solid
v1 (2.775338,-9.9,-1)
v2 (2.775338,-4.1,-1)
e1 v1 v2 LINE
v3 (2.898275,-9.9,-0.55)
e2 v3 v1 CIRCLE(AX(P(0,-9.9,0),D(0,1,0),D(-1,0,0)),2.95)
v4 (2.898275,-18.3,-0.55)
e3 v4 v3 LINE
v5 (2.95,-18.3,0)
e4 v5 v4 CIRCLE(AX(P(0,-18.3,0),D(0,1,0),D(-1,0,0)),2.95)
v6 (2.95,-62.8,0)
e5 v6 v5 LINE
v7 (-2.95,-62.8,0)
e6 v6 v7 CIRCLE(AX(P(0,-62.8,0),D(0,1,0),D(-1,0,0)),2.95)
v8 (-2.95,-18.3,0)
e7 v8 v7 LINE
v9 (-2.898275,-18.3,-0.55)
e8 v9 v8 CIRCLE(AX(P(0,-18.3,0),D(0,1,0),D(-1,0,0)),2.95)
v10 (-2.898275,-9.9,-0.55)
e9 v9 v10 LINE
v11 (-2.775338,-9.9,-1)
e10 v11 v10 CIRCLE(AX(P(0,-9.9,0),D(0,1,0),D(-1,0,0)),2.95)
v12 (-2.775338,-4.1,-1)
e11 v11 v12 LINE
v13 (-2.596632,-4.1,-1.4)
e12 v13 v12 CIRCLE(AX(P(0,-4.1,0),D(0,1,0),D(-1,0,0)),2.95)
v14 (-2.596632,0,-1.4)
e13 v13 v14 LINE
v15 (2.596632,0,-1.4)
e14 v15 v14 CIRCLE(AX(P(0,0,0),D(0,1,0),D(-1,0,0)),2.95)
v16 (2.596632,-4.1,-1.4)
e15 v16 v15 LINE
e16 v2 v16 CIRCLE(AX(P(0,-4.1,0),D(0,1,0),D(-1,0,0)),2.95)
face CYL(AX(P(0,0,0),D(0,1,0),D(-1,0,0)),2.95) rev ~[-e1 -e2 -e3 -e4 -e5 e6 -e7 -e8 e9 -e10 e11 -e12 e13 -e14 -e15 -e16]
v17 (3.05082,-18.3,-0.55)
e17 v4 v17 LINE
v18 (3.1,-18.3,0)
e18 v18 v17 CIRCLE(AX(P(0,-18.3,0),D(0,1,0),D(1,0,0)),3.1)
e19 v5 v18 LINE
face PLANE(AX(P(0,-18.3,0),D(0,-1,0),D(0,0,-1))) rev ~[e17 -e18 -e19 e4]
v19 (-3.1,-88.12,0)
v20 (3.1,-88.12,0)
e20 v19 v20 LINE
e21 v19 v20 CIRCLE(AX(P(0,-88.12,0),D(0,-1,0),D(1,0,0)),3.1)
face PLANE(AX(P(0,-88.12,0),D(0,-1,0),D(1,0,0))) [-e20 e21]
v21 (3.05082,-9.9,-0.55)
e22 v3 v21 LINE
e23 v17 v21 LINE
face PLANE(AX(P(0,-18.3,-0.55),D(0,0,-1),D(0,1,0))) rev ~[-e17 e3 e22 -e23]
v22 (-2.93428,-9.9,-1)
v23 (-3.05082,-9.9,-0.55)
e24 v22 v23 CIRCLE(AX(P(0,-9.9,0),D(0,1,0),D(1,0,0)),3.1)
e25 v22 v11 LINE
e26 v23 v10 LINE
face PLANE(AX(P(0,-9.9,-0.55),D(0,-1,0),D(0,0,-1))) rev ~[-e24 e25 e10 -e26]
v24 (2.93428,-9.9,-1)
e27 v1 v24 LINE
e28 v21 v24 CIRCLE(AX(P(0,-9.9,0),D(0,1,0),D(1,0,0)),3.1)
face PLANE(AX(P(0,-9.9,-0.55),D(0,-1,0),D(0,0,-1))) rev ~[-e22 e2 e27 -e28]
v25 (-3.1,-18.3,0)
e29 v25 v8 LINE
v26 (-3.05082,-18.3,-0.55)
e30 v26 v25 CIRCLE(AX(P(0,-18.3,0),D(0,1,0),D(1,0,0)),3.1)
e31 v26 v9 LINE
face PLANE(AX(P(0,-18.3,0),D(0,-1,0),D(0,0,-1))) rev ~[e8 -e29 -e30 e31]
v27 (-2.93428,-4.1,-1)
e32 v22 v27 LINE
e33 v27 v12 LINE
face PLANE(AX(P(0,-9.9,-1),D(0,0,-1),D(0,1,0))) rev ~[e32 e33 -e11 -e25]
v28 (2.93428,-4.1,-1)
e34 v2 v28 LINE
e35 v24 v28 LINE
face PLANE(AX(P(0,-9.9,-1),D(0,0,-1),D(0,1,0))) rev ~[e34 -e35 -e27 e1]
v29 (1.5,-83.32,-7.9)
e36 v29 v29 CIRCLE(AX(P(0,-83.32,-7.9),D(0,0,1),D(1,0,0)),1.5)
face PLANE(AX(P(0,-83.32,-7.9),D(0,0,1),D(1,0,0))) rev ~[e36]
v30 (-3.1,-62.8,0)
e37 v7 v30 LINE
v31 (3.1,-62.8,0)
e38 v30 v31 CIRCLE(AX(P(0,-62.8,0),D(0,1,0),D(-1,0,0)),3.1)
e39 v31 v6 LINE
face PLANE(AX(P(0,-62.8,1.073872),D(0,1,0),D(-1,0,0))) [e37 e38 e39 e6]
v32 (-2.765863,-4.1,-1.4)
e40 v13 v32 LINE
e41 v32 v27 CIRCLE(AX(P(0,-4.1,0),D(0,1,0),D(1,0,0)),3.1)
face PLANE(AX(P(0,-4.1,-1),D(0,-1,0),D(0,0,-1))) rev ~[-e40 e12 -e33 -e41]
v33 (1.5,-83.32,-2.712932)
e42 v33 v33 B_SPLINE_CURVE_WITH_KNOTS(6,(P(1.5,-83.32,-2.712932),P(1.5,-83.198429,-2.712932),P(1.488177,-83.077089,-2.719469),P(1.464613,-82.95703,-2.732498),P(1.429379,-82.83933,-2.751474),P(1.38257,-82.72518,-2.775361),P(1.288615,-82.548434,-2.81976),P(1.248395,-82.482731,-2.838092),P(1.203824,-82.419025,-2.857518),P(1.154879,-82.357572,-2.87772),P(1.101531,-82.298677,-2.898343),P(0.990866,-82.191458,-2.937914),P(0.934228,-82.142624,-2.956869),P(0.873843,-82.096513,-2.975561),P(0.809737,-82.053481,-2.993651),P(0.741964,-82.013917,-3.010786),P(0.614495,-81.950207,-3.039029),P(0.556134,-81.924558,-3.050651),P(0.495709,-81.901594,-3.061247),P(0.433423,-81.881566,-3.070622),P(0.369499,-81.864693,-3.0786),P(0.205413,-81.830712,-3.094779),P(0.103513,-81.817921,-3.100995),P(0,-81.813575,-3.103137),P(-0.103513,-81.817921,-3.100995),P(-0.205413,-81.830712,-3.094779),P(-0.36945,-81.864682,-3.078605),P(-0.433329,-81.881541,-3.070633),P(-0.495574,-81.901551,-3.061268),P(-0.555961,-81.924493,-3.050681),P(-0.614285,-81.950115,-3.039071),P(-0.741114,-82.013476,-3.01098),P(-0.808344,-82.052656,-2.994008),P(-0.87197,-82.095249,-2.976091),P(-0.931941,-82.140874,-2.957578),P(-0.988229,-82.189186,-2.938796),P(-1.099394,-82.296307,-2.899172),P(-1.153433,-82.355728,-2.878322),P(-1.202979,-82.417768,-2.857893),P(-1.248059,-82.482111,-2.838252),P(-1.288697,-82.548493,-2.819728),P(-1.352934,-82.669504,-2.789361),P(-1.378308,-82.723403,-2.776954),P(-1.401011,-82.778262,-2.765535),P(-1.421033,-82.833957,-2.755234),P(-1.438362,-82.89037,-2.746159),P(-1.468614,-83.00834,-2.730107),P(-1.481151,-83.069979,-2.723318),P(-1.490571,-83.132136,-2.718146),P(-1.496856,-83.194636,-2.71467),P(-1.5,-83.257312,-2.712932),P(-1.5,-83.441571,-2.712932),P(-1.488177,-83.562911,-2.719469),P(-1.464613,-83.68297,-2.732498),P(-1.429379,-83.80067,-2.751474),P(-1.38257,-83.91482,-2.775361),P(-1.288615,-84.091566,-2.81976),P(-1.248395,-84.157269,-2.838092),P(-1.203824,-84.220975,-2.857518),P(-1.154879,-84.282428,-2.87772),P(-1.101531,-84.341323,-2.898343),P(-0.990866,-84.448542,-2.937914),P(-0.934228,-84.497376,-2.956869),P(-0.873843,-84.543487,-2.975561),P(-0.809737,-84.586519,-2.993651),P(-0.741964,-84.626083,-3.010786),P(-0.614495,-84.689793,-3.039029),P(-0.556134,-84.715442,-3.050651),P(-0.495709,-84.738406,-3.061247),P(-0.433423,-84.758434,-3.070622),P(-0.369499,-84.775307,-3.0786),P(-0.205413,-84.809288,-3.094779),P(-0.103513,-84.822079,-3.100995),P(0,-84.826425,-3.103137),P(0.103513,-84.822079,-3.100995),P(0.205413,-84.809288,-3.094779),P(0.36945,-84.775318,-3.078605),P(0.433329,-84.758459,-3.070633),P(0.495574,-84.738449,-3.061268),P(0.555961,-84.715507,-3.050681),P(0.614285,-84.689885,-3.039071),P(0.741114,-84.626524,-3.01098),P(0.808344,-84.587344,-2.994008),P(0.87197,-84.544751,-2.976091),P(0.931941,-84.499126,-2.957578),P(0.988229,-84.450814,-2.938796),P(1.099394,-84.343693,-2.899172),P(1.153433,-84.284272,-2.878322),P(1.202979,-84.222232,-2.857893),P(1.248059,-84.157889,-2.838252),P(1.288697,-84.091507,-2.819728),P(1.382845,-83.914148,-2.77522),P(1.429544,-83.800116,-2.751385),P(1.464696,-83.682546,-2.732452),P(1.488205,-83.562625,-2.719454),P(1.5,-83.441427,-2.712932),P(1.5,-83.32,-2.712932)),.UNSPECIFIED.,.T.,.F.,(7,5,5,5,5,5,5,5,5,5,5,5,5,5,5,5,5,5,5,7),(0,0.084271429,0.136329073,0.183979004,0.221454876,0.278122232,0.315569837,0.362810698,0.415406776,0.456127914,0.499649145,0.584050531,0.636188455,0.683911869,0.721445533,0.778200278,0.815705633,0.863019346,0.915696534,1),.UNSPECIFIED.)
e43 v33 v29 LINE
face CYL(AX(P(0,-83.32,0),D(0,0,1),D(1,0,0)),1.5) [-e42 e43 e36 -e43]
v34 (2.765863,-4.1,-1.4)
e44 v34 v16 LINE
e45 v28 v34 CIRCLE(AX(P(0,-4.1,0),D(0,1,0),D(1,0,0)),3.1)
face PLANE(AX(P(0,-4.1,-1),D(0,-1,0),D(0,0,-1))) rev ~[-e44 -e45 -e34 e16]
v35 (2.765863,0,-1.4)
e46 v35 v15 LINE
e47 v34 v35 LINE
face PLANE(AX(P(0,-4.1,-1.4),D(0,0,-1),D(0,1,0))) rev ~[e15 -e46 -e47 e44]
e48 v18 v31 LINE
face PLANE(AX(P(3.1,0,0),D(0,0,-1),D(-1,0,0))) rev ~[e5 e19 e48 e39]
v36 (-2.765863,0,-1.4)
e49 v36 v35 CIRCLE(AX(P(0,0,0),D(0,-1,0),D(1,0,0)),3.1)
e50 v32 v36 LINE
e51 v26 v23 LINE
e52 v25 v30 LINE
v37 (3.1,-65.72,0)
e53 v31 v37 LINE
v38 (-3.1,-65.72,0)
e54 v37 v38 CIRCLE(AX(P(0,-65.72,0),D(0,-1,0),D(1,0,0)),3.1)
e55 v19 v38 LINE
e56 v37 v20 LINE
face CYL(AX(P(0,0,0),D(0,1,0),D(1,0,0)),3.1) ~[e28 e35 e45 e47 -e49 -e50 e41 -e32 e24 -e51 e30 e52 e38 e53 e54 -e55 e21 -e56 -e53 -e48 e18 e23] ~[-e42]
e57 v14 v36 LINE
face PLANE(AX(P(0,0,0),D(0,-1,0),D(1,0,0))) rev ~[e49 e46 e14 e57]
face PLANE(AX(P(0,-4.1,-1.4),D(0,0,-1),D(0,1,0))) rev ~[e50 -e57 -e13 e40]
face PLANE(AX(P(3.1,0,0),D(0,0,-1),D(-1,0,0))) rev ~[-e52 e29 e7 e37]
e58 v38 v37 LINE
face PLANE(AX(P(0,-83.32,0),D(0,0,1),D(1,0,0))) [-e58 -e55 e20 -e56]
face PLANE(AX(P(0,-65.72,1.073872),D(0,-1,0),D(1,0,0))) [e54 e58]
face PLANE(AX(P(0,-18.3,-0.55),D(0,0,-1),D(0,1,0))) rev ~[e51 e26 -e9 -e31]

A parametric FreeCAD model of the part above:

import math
import FreeCAD as App
import Part
import Sketcher
from FreeCAD import Vector
Q = App.Units.Quantity

doc = App.newDocument("Part")
body = doc.addObject("PartDesign::Body", "Body")

sketch1 = body.newObject("Sketcher::SketchObject", "Sketch")
sketch1.AttachmentSupport = (doc.getObject("XZ_Plane"), [""])
sketch1.MapMode = "FlatFace"
sketch1.addGeometry(Part.Circle(Vector(0, 0, 0), Vector(0, 0, 1), 3.1), False)
sketch1.addConstraint([
    Sketcher.Constraint("Coincident", 0, 3, -1, 1),
    Sketcher.Constraint("Diameter", 0, Q("6.2 mm")),
])
pad1 = body.newObject("PartDesign::Pad", "Pad")
pad1.Profile = sketch1
pad1.Length = 88.12

sketch2 = body.newObject("Sketcher::SketchObject", "Sketch001")
sketch2.AttachmentSupport = (doc.getObject("XZ_Plane"), [""])
sketch2.MapMode = "FlatFace"
sketch2.AttachmentOffset = App.Placement(Vector(0, 0, 88.12), App.Rotation())
sketch2.addGeometry([
    Part.ArcOfCircle(Part.Circle(Vector(0, 0, 0), Vector(0, 0, 1), 3.1), math.radians(0), math.radians(180)),
    Part.LineSegment(Vector(-3.1, 0, 0), Vector(3.1, 0, 0)),
], False)
sketch2.addConstraint([
    Sketcher.Constraint("Coincident", 0, 1, 1, 2),
    Sketcher.Constraint("Coincident", 1, 1, 0, 2),
    Sketcher.Constraint("Horizontal", 1),
    Sketcher.Constraint("Coincident", 0, 3, -1, 1),
    Sketcher.Constraint("PointOnObject", 0, 1, -1),
    Sketcher.Constraint("Radius", 0, Q("3.1 mm")),
])
pocket1 = body.newObject("PartDesign::Pocket", "Pocket")
pocket1.Profile = sketch2
pocket1.Length = 22.4

sketch3 = body.newObject("Sketcher::SketchObject", "Sketch002")
sketch3.AttachmentSupport = (doc.getObject("XZ_Plane"), [""])
sketch3.MapMode = "FlatFace"
sketch3.addGeometry([
    Part.ArcOfCircle(Part.Circle(Vector(0, 0, 0), Vector(0, 0, 1), 3.1), math.radians(0), math.radians(180)),
    Part.LineSegment(Vector(3.1, 0, 0), Vector(-3.1, 0, 0)),
], False)
sketch3.addConstraint([
    Sketcher.Constraint("Coincident", 0, 1, 1, 1),
    Sketcher.Constraint("Coincident", 1, 2, 0, 2),
    Sketcher.Constraint("Horizontal", 1),
    Sketcher.Constraint("Coincident", 0, 3, -1, 1),
    Sketcher.Constraint("PointOnObject", 0, 1, -1),
    Sketcher.Constraint("Radius", 0, Q("3.1 mm")),
])
pocket2 = body.newObject("PartDesign::Pocket", "Pocket001")
pocket2.Profile = sketch3
pocket2.Length = 62.8
pocket2.Reversed = True

sketch4 = body.newObject("Sketcher::SketchObject", "Sketch003")
sketch4.AttachmentSupport = (doc.getObject("XZ_Plane"), [""])
sketch4.MapMode = "FlatFace"
sketch4.addGeometry(Part.Circle(Vector(0, 0, 0), Vector(0, 0, 1), 3), False)
sketch4.addConstraint([
    Sketcher.Constraint("Coincident", 0, 3, -1, 1),
    Sketcher.Constraint("Diameter", 0, Q("5.9 mm")),
])
pocket3 = body.newObject("PartDesign::Pocket", "Pocket002")
pocket3.Profile = sketch4
pocket3.Length = 62.8
pocket3.Reversed = True

sketch5 = body.newObject("Sketcher::SketchObject", "Sketch004")
sketch5.AttachmentSupport = (doc.getObject("YZ_Plane"), [""])
sketch5.MapMode = "FlatFace"
sketch5.addGeometry([
    Part.LineSegment(Vector(0, 0, 0), Vector(-18.3, 0, 0)),
    Part.LineSegment(Vector(-18.3, 0, 0), Vector(-18.3, -0.55, 0)),
    Part.LineSegment(Vector(-18.3, -0.55, 0), Vector(-9.9, -0.55, 0)),
    Part.LineSegment(Vector(-9.9, -0.55, 0), Vector(-9.9, -1, 0)),
    Part.LineSegment(Vector(-9.9, -1, 0), Vector(-4.1, -1, 0)),
    Part.LineSegment(Vector(-4.1, -1, 0), Vector(-4.1, -1.4, 0)),
    Part.LineSegment(Vector(-4.1, -1.4, 0), Vector(0, -1.4, 0)),
    Part.LineSegment(Vector(0, -1.4, 0), Vector(0, 0, 0)),
], False)
sketch5.addConstraint([
    Sketcher.Constraint("Coincident", 0, 2, 1, 1),
    Sketcher.Constraint("Coincident", 1, 2, 2, 1),
    Sketcher.Constraint("Coincident", 2, 2, 3, 1),
    Sketcher.Constraint("Coincident", 3, 2, 4, 1),
    Sketcher.Constraint("Coincident", 4, 2, 5, 1),
    Sketcher.Constraint("Coincident", 5, 2, 6, 1),
    Sketcher.Constraint("Coincident", 6, 2, 7, 1),
    Sketcher.Constraint("Coincident", 7, 2, 0, 1),
    Sketcher.Constraint("Horizontal", 0),
    Sketcher.Constraint("Vertical", 1),
    Sketcher.Constraint("Horizontal", 2),
    Sketcher.Constraint("Vertical", 3),
    Sketcher.Constraint("Horizontal", 4),
    Sketcher.Constraint("Vertical", 5),
    Sketcher.Constraint("Horizontal", 6),
    Sketcher.Constraint("Vertical", 7),
    Sketcher.Constraint("Coincident", 7, 2, -1, 1),
    Sketcher.Constraint("DistanceX", 0, 2, 0, 1, Q("18.3 mm")),
    Sketcher.Constraint("DistanceX", 2, 1, 2, 2, Q("8.4 mm")),
    Sketcher.Constraint("DistanceX", 4, 1, 4, 2, Q("5.8 mm")),
    Sketcher.Constraint("DistanceY", 5, 2, 5, 1, Q("0.4 mm")),
    Sketcher.Constraint("DistanceY", 7, 1, 7, 2, Q("1.4 mm")),
    Sketcher.Constraint("DistanceY", 1, 2, 1, 1, Q("0.55 mm")),
])
pocket4 = body.newObject("PartDesign::Pocket", "Pocket003")
pocket4.Profile = sketch5
pocket4.Length = 25
pocket4.Midplane = True

sketch6 = body.newObject("Sketcher::SketchObject", "Sketch005")
sketch6.AttachmentSupport = (doc.getObject("XY_Plane"), [""])
sketch6.MapMode = "FlatFace"
sketch6.addGeometry(Part.Circle(Vector(0, -83.3, 0), Vector(0, 0, 1), 1.5), False)
sketch6.addConstraint([
    Sketcher.Constraint("PointOnObject", 0, 3, -2),
    Sketcher.Constraint("Diameter", 0, Q("3 mm")),
    Sketcher.Constraint("DistanceY", 0, 3, -1, 1, Q("83.32 mm")),
])
pad2 = body.newObject("PartDesign::Pad", "Pad001")
pad2.Profile = sketch6
pad2.Length = 7.9
pad2.Reversed = True

doc.recompute()
